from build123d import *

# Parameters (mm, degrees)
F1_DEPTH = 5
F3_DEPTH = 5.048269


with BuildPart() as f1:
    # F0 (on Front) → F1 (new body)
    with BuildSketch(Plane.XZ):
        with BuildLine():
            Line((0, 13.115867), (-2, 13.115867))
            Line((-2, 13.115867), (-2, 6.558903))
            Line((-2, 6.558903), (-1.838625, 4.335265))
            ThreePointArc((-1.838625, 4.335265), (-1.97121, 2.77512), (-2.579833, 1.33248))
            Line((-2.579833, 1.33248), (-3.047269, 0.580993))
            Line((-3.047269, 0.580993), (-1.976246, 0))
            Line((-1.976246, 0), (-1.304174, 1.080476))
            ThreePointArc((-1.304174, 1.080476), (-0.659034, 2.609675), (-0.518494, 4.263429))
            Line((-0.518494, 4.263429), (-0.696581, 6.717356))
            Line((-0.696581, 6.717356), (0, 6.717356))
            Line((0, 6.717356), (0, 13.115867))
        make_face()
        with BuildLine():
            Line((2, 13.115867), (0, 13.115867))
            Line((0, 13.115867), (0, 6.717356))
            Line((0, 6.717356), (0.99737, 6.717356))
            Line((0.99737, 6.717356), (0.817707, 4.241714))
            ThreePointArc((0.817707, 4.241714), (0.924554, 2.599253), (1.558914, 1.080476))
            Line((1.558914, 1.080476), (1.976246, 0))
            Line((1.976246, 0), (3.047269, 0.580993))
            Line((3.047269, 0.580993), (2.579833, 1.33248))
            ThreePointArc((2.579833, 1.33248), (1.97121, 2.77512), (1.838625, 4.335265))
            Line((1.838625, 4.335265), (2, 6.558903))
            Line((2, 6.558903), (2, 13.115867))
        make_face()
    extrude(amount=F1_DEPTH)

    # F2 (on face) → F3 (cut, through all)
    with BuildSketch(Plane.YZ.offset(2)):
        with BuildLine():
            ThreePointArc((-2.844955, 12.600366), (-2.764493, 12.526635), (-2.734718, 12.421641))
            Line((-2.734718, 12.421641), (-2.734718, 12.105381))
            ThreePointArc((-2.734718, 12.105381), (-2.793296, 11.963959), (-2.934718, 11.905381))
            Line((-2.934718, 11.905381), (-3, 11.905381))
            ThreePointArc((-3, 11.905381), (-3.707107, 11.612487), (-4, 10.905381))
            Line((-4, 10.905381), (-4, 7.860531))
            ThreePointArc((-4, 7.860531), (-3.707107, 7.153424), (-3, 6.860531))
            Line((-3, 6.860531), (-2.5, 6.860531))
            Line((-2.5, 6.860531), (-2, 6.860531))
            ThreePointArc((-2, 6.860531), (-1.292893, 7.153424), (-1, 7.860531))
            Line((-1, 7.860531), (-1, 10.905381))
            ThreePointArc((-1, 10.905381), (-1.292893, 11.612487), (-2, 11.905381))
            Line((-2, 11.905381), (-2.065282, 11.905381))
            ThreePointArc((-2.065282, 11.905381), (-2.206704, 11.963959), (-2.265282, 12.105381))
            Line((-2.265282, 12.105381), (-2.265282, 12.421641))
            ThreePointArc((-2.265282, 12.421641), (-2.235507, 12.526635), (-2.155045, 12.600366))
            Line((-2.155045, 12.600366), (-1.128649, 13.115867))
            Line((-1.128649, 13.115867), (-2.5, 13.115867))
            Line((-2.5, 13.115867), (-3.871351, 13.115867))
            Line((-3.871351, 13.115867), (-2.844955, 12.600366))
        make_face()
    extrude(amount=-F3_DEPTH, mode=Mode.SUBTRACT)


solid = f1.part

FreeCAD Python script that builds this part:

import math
import FreeCAD as App
import Part
import Sketcher

doc = App.newDocument("Part")
body = doc.addObject("PartDesign::Body", "Body")

# Sketch on XZ plane
sketch1 = body.newObject("Sketcher::SketchObject", "Sketch")
sketch1.AttachmentSupport = (doc.getObject("XZ_Plane"), [""])
sketch1.MapMode = "FlatFace"
sketch1.addGeometry([
    Part.LineSegment(App.Vector(-2, 13.1, 0), App.Vector(-2, 6.6, 0)),  # 0
    Part.LineSegment(App.Vector(-2, 6.6, 0), App.Vector(-1.8, 4.3, 0)),  # 1
    Part.ArcOfCircle(Part.Circle(App.Vector(-6.8, 4, 0), App.Vector(0, 0, 1), 5), math.radians(-32), math.radians(4)),  # 2
    Part.LineSegment(App.Vector(-2.6, 1.3, 0), App.Vector(-3, 0.6, 0)),  # 3
    Part.LineSegment(App.Vector(-3, 0.6, 0), App.Vector(-2, 0, 0)),  # 4
    Part.LineSegment(App.Vector(-2, 0, 0), App.Vector(-1.3, 1.1, 0)),  # 5
    Part.ArcOfCircle(Part.Circle(App.Vector(-5.8, 3.9, 0), App.Vector(0, 0, 1), 5.3), math.radians(-32), math.radians(4)),  # 6
    Part.LineSegment(App.Vector(-0.5, 4.3, 0), App.Vector(-0.7, 6.7, 0)),  # 7
    Part.LineSegment(App.Vector(-0.7, 6.7, 0), App.Vector(1, 6.7, 0)),  # 8
    Part.LineSegment(App.Vector(1, 6.7, 0), App.Vector(0.8, 4.2, 0)),  # 9
    Part.ArcOfCircle(Part.Circle(App.Vector(5.8, 3.7, 0), App.Vector(0, 0, 1), 5), math.radians(174), math.radians(212)),  # 10
    Part.LineSegment(App.Vector(1.6, 1.1, 0), App.Vector(2, 0, 0)),  # 11
    Part.LineSegment(App.Vector(2, 0, 0), App.Vector(3, 0.6, 0)),  # 12
    Part.LineSegment(App.Vector(3, 0.6, 0), App.Vector(2.6, 1.3, 0)),  # 13
    Part.ArcOfCircle(Part.Circle(App.Vector(6.8, 4, 0), App.Vector(0, 0, 1), 5), math.radians(176), math.radians(212)),  # 14
    Part.LineSegment(App.Vector(1.8, 4.3, 0), App.Vector(2, 6.6, 0)),  # 15
    Part.LineSegment(App.Vector(2, 6.6, 0), App.Vector(2, 13.1, 0)),  # 16
    Part.LineSegment(App.Vector(2, 13.1, 0), App.Vector(-2, 13.1, 0)),  # 17
], False)
sketch1.addConstraint([
    Sketcher.Constraint("Coincident", 0, 2, 1, 1),
    Sketcher.Constraint("Tangent", 1, 2, 2, 2),
    Sketcher.Constraint("Tangent", 2, 1, 3, 1),
    Sketcher.Constraint("Coincident", 3, 2, 4, 1),
    Sketcher.Constraint("Coincident", 4, 2, 5, 1),
    Sketcher.Constraint("Tangent", 5, 2, 6, 1),
    Sketcher.Constraint("Tangent", 6, 2, 7, 1),
    Sketcher.Constraint("Coincident", 7, 2, 8, 1),
    Sketcher.Constraint("Coincident", 8, 2, 9, 1),
    Sketcher.Constraint("Coincident", 9, 2, 10, 1),
    Sketcher.Constraint("Coincident", 10, 2, 11, 1),
    Sketcher.Constraint("Coincident", 11, 2, 12, 1),
    Sketcher.Constraint("Coincident", 12, 2, 13, 1),
    Sketcher.Constraint("Tangent", 13, 2, 14, 2),
    Sketcher.Constraint("Tangent", 14, 1, 15, 1),
    Sketcher.Constraint("Coincident", 15, 2, 16, 1),
    Sketcher.Constraint("Coincident", 16, 2, 17, 1),
    Sketcher.Constraint("Coincident", 17, 2, 0, 1),
    Sketcher.Constraint("Vertical", 0),
    Sketcher.Constraint("Horizontal", 8),
    Sketcher.Constraint("Vertical", 16),
    Sketcher.Constraint("Horizontal", 17),
    Sketcher.Constraint("Equal", 2, 10),
    Sketcher.Constraint("Equal", 10, 14),
    Sketcher.Constraint("Symmetric", 4, 2, 11, 2, -1, 1),
    Sketcher.Constraint("Symmetric", 2, 3, 14, 3, -2),
    Sketcher.Constraint("Symmetric", 3, 2, 12, 2, -2),
    Sketcher.Constraint("Symmetric", 0, 2, 15, 2, -2),
    Sketcher.Constraint("PointOnObject", 4, 2, -1),
    Sketcher.Constraint("Parallel", 3, 5),
    Sketcher.Constraint("Parallel", 1, 7),
    Sketcher.Constraint("Parallel", 9, 15),
    Sketcher.Constraint("Horizontal", 5, 2, 10, 2),
    Sketcher.Constraint("Radius", 10, 5.000002),
    Sketcher.Constraint("DistanceX", 17, 2, 17, 1, 4.0),
    Sketcher.Constraint("Radius", 6, 5.300009),
    Sketcher.Constraint("DistanceX", 8, 1, 8, 2, 1.693951),
    Sketcher.Constraint("DistanceX", 6, 3, -1, 1, 5.804601),
    Sketcher.Constraint("DistanceX", 6, 2, 9, 2, 1.336201),
    Sketcher.Constraint("Distance", 4, 1.218459),
    Sketcher.Constraint("Distance", 7, 2.460381),
    Sketcher.Constraint("DistanceY", 0, 2, 0, 1, 6.556964),
    Sketcher.Constraint("DistanceY", -1, 1, 2, 1, 1.33248),
    Sketcher.Constraint("DistanceX", 3, 2, -1, 1, 3.047269),
    Sketcher.Constraint("DistanceY", -1, 1, 6, 2, 4.263429),
    Sketcher.Constraint("DistanceX", 7, 2, -1, 1, 0.696581),
    Sketcher.Constraint("DistanceX", 2, 3, 6, 3, 1.020912),
    Sketcher.Constraint("DistanceX", 6, 3, 10, 3, 11.597139),
])
pad1 = body.newObject("PartDesign::Pad", "Pad")
pad1.Profile = sketch1
pad1.Length = 5

# Sketch on YZ plane
sketch2 = body.newObject("Sketcher::SketchObject", "Sketch001")
sketch2.AttachmentSupport = (doc.getObject("YZ_Plane"), [""])
sketch2.MapMode = "FlatFace"
sketch2.AttachmentOffset = App.Placement(App.Vector(0, 0, 2), App.Rotation())
sketch2.addGeometry([
    Part.ArcOfCircle(Part.Circle(App.Vector(-2.93, 12.42, 0), App.Vector(0, 0, 1), 0.2), math.radians(0), math.radians(63)),  # 0
    Part.LineSegment(App.Vector(-2.73, 12.42, 0), App.Vector(-2.73, 12.11, 0)),  # 1
    Part.ArcOfCircle(Part.Circle(App.Vector(-2.93, 12.11, 0), App.Vector(0, 0, 1), 0.2), math.radians(-90), math.radians(0)),  # 2
    Part.LineSegment(App.Vector(-2.93, 11.91, 0), App.Vector(-3, 11.91, 0)),  # 3
    Part.ArcOfCircle(Part.Circle(App.Vector(-3, 10.91, 0), App.Vector(0, 0, 1), 1), math.radians(90), math.radians(180)),  # 4
    Part.LineSegment(App.Vector(-4, 10.91, 0), App.Vector(-4, 7.86, 0)),  # 5
    Part.ArcOfCircle(Part.Circle(App.Vector(-3, 7.86, 0), App.Vector(0, 0, 1), 1), math.radians(180), math.radians(270)),  # 6
    Part.LineSegment(App.Vector(-3, 6.86, 0), App.Vector(-2, 6.86, 0)),  # 7
    Part.ArcOfCircle(Part.Circle(App.Vector(-2, 7.86, 0), App.Vector(0, 0, 1), 1), math.radians(-90), math.radians(0)),  # 8
    Part.LineSegment(App.Vector(-1, 7.86, 0), App.Vector(-1, 10.91, 0)),  # 9
    Part.ArcOfCircle(Part.Circle(App.Vector(-2, 10.91, 0), App.Vector(0, 0, 1), 1), math.radians(0), math.radians(90)),  # 10
    Part.LineSegment(App.Vector(-2, 11.91, 0), App.Vector(-2.07, 11.91, 0)),  # 11
    Part.ArcOfCircle(Part.Circle(App.Vector(-2.07, 12.11, 0), App.Vector(0, 0, 1), 0.2), math.radians(180), math.radians(270)),  # 12
    Part.LineSegment(App.Vector(-2.27, 12.11, 0), App.Vector(-2.27, 12.42, 0)),  # 13
    Part.ArcOfCircle(Part.Circle(App.Vector(-2.07, 12.42, 0), App.Vector(0, 0, 1), 0.2), math.radians(117), math.radians(180)),  # 14
    Part.LineSegment(App.Vector(-2.16, 12.6, 0), App.Vector(-1.13, 13.12, 0)),  # 15
    Part.LineSegment(App.Vector(-1.13, 13.12, 0), App.Vector(-3.87, 13.12, 0)),  # 16
    Part.LineSegment(App.Vector(-3.87, 13.12, 0), App.Vector(-2.84, 12.6, 0)),  # 17
], False)
sketch2.addConstraint([
    Sketcher.Constraint("Coincident", 0, 1, 1, 1),
    Sketcher.Constraint("Coincident", 1, 2, 2, 2),
    Sketcher.Constraint("Coincident", 2, 1, 3, 1),
    Sketcher.Constraint("Tangent", 3, 2, 4, 1),
    Sketcher.Constraint("Tangent", 4, 2, 5, 1),
    Sketcher.Constraint("Tangent", 5, 2, 6, 1),
    Sketcher.Constraint("Tangent", 6, 2, 7, 1),
    Sketcher.Constraint("Tangent", 7, 2, 8, 1),
    Sketcher.Constraint("Tangent", 8, 2, 9, 1),
    Sketcher.Constraint("Tangent", 9, 2, 10, 1),
    Sketcher.Constraint("Tangent", 10, 2, 11, 1),
    Sketcher.Constraint("Coincident", 11, 2, 12, 2),
    Sketcher.Constraint("Coincident", 12, 1, 13, 1),
    Sketcher.Constraint("Coincident", 13, 2, 14, 2),
    Sketcher.Constraint("Coincident", 14, 1, 15, 1),
    Sketcher.Constraint("Coincident", 15, 2, 16, 1),
    Sketcher.Constraint("Coincident", 16, 2, 17, 1),
    Sketcher.Constraint("Coincident", 17, 2, 0, 2),
    Sketcher.Constraint("Vertical", 1),
    Sketcher.Constraint("Horizontal", 3),
    Sketcher.Constraint("Vertical", 5),
    Sketcher.Constraint("Horizontal", 7),
    Sketcher.Constraint("Vertical", 9),
    Sketcher.Constraint("Horizontal", 11),
    Sketcher.Constraint("Vertical", 13),
    Sketcher.Constraint("Horizontal", 16),
    Sketcher.Constraint("Equal", 0, 2),
    Sketcher.Constraint("Equal", 4, 6),
    Sketcher.Constraint("Equal", 6, 8),
    Sketcher.Constraint("Equal", 8, 10),
    Sketcher.Constraint("Equal", 2, 12),
    Sketcher.Constraint("Equal", 12, 14),
    Sketcher.Constraint("Horizontal", 4, 3, 10, 3),
    Sketcher.Constraint("Horizontal", 0, 3, 14, 3),
    Sketcher.Constraint("Horizontal", 1, 2, 12, 1),
    Sketcher.Constraint("Horizontal", 0, 1, 13, 2),
    Sketcher.Constraint("Horizontal", 14, 1, 17, 2),
    Sketcher.Constraint("Equal", 3, 11),
    Sketcher.Constraint("Equal", 15, 17),
    Sketcher.Constraint("Radius", 4, 1.000001),
    Sketcher.Constraint("DistanceX", 7, 1, 7, 2, 1.0),
    Sketcher.Constraint("DistanceX", 4, 3, -1, 1, 2.999999),
    Sketcher.Constraint("DistanceY", 4, 3, 2, 3, 1.199999),
    Sketcher.Constraint("DistanceX", 2, 1, 1, 2, 0.2),
    Sketcher.Constraint("DistanceY", 2, 1, 1, 2, 0.2),
    Sketcher.Constraint("DistanceX", 12, 1, 11, 2, 0.2),
    Sketcher.Constraint("DistanceX", 3, 2, 3, 1, 0.065282),
    Sketcher.Constraint("DistanceY", 1, 2, 1, 1, 0.31626),
    Sketcher.Constraint("DistanceY", 5, 2, 5, 1, 3.04485),
    Sketcher.Constraint("DistanceY", 14, 1, 15, 2, 0.515501),
    Sketcher.Constraint("DistanceX", 16, 2, 16, 1, 2.742702),
    Sketcher.Constraint("DistanceY", -1, 1, 2, 3, 12.105379),
    Sketcher.Constraint("DistanceX", 14, 1, 14, 3, 0.089759),
    Sketcher.Constraint("DistanceY", 12, 3, 15, 2, 1.010488),
])
pocket1 = body.newObject("PartDesign::Pocket", "Pocket")
pocket1.Profile = sketch2
pocket1.Type = "ThroughAll"

doc.recompute()
